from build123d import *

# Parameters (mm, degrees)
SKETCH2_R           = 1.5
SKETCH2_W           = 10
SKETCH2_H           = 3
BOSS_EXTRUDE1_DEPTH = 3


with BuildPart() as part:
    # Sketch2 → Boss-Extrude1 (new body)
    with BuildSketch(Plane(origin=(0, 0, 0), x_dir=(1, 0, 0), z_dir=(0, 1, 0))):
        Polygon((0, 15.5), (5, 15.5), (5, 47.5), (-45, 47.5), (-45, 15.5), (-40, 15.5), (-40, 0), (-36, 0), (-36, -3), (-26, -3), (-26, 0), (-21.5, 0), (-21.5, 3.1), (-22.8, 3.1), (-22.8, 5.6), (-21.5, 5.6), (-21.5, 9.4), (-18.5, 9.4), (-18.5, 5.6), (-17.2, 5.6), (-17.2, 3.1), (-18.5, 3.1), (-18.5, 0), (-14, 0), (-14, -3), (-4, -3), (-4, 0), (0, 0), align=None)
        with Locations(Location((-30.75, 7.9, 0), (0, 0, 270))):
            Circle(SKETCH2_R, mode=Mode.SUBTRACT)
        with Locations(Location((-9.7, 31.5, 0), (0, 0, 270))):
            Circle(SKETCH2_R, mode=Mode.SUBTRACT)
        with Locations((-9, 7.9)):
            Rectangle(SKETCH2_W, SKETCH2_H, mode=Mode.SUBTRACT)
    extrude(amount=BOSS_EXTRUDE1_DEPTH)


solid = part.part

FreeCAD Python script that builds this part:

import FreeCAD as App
import Part
import Sketcher
from FreeCAD import Vector

doc = App.newDocument("Part")
body = doc.addObject("PartDesign::Body", "Body")

# Sketch on XZ plane
sketch1 = body.newObject("Sketcher::SketchObject", "Sketch")
sketch1.AttachmentSupport = (doc.getObject("XZ_Plane"), [""])
sketch1.MapMode = "FlatFace"
sketch1.addGeometry([
    Part.LineSegment(Vector(0, -15.5, 0), Vector(5, -15.5, 0)),  # 0
    Part.LineSegment(Vector(5, -15.5, 0), Vector(5, -47.5, 0)),  # 1
    Part.LineSegment(Vector(5, -47.5, 0), Vector(-45, -47.5, 0)),  # 2
    Part.LineSegment(Vector(-45, -47.5, 0), Vector(-45, -15.5, 0)),  # 3
    Part.LineSegment(Vector(-45, -15.5, 0), Vector(-40, -15.5, 0)),  # 4
    Part.LineSegment(Vector(-40, -15.5, 0), Vector(-40, 0, 0)),  # 5
    Part.LineSegment(Vector(-40, 0, 0), Vector(-36, 0, 0)),  # 6
    Part.LineSegment(Vector(-36, 0, 0), Vector(-36, 3, 0)),  # 7
    Part.LineSegment(Vector(-36, 3, 0), Vector(-26, 3, 0)),  # 8
    Part.LineSegment(Vector(-26, 3, 0), Vector(-26, 0, 0)),  # 9
    Part.LineSegment(Vector(-26, 0, 0), Vector(-21.5, 0, 0)),  # 10
    Part.LineSegment(Vector(-21.5, 0, 0), Vector(-21.5, -3.1, 0)),  # 11
    Part.LineSegment(Vector(-21.5, -3.1, 0), Vector(-22.8, -3.1, 0)),  # 12
    Part.LineSegment(Vector(-22.8, -3.1, 0), Vector(-22.8, -5.6, 0)),  # 13
    Part.LineSegment(Vector(-22.8, -5.6, 0), Vector(-21.5, -5.6, 0)),  # 14
    Part.LineSegment(Vector(-21.5, -5.6, 0), Vector(-21.5, -9.4, 0)),  # 15
    Part.LineSegment(Vector(-21.5, -9.4, 0), Vector(-18.5, -9.4, 0)),  # 16
    Part.LineSegment(Vector(-18.5, -9.4, 0), Vector(-18.5, -5.6, 0)),  # 17
    Part.LineSegment(Vector(-18.5, -5.6, 0), Vector(-17.2, -5.6, 0)),  # 18
    Part.LineSegment(Vector(-17.2, -5.6, 0), Vector(-17.2, -3.1, 0)),  # 19
    Part.LineSegment(Vector(-17.2, -3.1, 0), Vector(-18.5, -3.1, 0)),  # 20
    Part.LineSegment(Vector(-18.5, -3.1, 0), Vector(-18.5, 0, 0)),  # 21
    Part.LineSegment(Vector(-18.5, 0, 0), Vector(-14, 0, 0)),  # 22
    Part.LineSegment(Vector(-14, 0, 0), Vector(-14, 3, 0)),  # 23
    Part.LineSegment(Vector(-14, 3, 0), Vector(-4, 3, 0)),  # 24
    Part.LineSegment(Vector(-4, 3, 0), Vector(-4, 0, 0)),  # 25
    Part.LineSegment(Vector(-4, 0, 0), Vector(0, 0, 0)),  # 26
    Part.LineSegment(Vector(0, 0, 0), Vector(0, -15.5, 0)),  # 27
    Part.Circle(Vector(-30.8, -7.9, 0), Vector(0, 0, 1), 1.5),  # 28
    Part.LineSegment(Vector(-4, -6.4, 0), Vector(-14, -6.4, 0)),  # 29
    Part.LineSegment(Vector(-14, -6.4, 0), Vector(-14, -9.4, 0)),  # 30
    Part.LineSegment(Vector(-14, -9.4, 0), Vector(-4, -9.4, 0)),  # 31
    Part.LineSegment(Vector(-4, -9.4, 0), Vector(-4, -6.4, 0)),  # 32
    Part.Circle(Vector(-9.7, -31.5, 0), Vector(0, 0, 1), 1.5),  # 33
], False)
sketch1.addConstraint([
    Sketcher.Constraint("Coincident", 0, 2, 1, 1),
    Sketcher.Constraint("Coincident", 1, 2, 2, 1),
    Sketcher.Constraint("Coincident", 2, 2, 3, 1),
    Sketcher.Constraint("Coincident", 3, 2, 4, 1),
    Sketcher.Constraint("Coincident", 4, 2, 5, 1),
    Sketcher.Constraint("Coincident", 5, 2, 6, 1),
    Sketcher.Constraint("Coincident", 6, 2, 7, 1),
    Sketcher.Constraint("Coincident", 7, 2, 8, 1),
    Sketcher.Constraint("Coincident", 8, 2, 9, 1),
    Sketcher.Constraint("Coincident", 9, 2, 10, 1),
    Sketcher.Constraint("Coincident", 10, 2, 11, 1),
    Sketcher.Constraint("Coincident", 11, 2, 12, 1),
    Sketcher.Constraint("Coincident", 12, 2, 13, 1),
    Sketcher.Constraint("Coincident", 13, 2, 14, 1),
    Sketcher.Constraint("Coincident", 14, 2, 15, 1),
    Sketcher.Constraint("Coincident", 15, 2, 16, 1),
    Sketcher.Constraint("Coincident", 16, 2, 17, 1),
    Sketcher.Constraint("Coincident", 17, 2, 18, 1),
    Sketcher.Constraint("Coincident", 18, 2, 19, 1),
    Sketcher.Constraint("Coincident", 19, 2, 20, 1),
    Sketcher.Constraint("Coincident", 20, 2, 21, 1),
    Sketcher.Constraint("Coincident", 21, 2, 22, 1),
    Sketcher.Constraint("Coincident", 22, 2, 23, 1),
    Sketcher.Constraint("Coincident", 23, 2, 24, 1),
    Sketcher.Constraint("Coincident", 24, 2, 25, 1),
    Sketcher.Constraint("Coincident", 25, 2, 26, 1),
    Sketcher.Constraint("Coincident", 26, 2, 27, 1),
    Sketcher.Constraint("Coincident", 27, 2, 0, 1),
    Sketcher.Constraint("Coincident", 29, 2, 30, 1),
    Sketcher.Constraint("Coincident", 30, 2, 31, 1),
    Sketcher.Constraint("Coincident", 31, 2, 32, 1),
    Sketcher.Constraint("Coincident", 32, 2, 29, 1),
    Sketcher.Constraint("Horizontal", 0),
    Sketcher.Constraint("Vertical", 1),
    Sketcher.Constraint("Horizontal", 2),
    Sketcher.Constraint("Vertical", 3),
    Sketcher.Constraint("Horizontal", 4),
    Sketcher.Constraint("Vertical", 5),
    Sketcher.Constraint("Horizontal", 6),
    Sketcher.Constraint("Vertical", 7),
    Sketcher.Constraint("Horizontal", 8),
    Sketcher.Constraint("Vertical", 9),
    Sketcher.Constraint("Horizontal", 10),
    Sketcher.Constraint("Vertical", 11),
    Sketcher.Constraint("Horizontal", 12),
    Sketcher.Constraint("Vertical", 13),
    Sketcher.Constraint("Horizontal", 14),
    Sketcher.Constraint("Vertical", 15),
    Sketcher.Constraint("Horizontal", 16),
    Sketcher.Constraint("Vertical", 17),
    Sketcher.Constraint("Horizontal", 18),
    Sketcher.Constraint("Vertical", 19),
    Sketcher.Constraint("Horizontal", 20),
    Sketcher.Constraint("Vertical", 21),
    Sketcher.Constraint("Horizontal", 22),
    Sketcher.Constraint("Vertical", 23),
    Sketcher.Constraint("Horizontal", 24),
    Sketcher.Constraint("Vertical", 25),
    Sketcher.Constraint("Horizontal", 26),
    Sketcher.Constraint("Vertical", 27),
    Sketcher.Constraint("Horizontal", 29),
    Sketcher.Constraint("Vertical", 30),
    Sketcher.Constraint("Horizontal", 31),
    Sketcher.Constraint("Vertical", 32),
    Sketcher.Constraint("Coincident", 26, 2, -1, 1),
    Sketcher.Constraint("Equal", 28, 33),
    Sketcher.Constraint("PointOnObject", 5, 2, -1),
    Sketcher.Constraint("PointOnObject", 9, 2, -1),
    Sketcher.Constraint("PointOnObject", 21, 2, -1),
    Sketcher.Constraint("Horizontal", 0, 2, 3, 2),
    Sketcher.Constraint("Horizontal", 14, 2, 17, 2),
    Sketcher.Constraint("Horizontal", 12, 2, 19, 2),
    Sketcher.Constraint("Horizontal", 8, 2, 23, 2),
    Sketcher.Constraint("Horizontal", 16, 2, 30, 2),
    Sketcher.Constraint("Vertical", 11, 2, 14, 2),
    Sketcher.Constraint("Vertical", 17, 2, 20, 2),
    Sketcher.Constraint("Vertical", 23, 2, 29, 2),
    Sketcher.Constraint("Vertical", 25, 2, 31, 2),
    Sketcher.Constraint("Equal", 0, 4),
    Sketcher.Constraint("Equal", 14, 18),
    Sketcher.Constraint("Equal", 10, 22),
    Sketcher.Constraint("Equal", 8, 24),
    Sketcher.Constraint("Equal", 6, 26),
    Sketcher.Constraint("Equal", 16, 7),
    Sketcher.Constraint("Equal", 25, 30),
    Sketcher.Constraint("Diameter", 28, 3.0),
    Sketcher.Constraint("DistanceX", 0, 1, 0, 2, 5.0),
    Sketcher.Constraint("DistanceX", 2, 2, 2, 1, 50.0),
    Sketcher.Constraint("DistanceX", 6, 1, 6, 2, 4.0),
    Sketcher.Constraint("DistanceX", 8, 1, 8, 2, 10.0),
    Sketcher.Constraint("DistanceX", 16, 1, 16, 2, 3.0),
    Sketcher.Constraint("DistanceY", 1, 2, 1, 1, 32.0),
    Sketcher.Constraint("DistanceX", 12, 2, 12, 1, 1.3),
    Sketcher.Constraint("DistanceY", 5, 1, 5, 2, 15.5),
    Sketcher.Constraint("DistanceY", 11, 2, 11, 1, 3.1),
    Sketcher.Constraint("DistanceY", 13, 2, 13, 1, 2.5),
    Sketcher.Constraint("DistanceY", 15, 2, 15, 1, 3.8),
    Sketcher.Constraint("DistanceY", 33, 3, 0, 2, 16.0),
    Sketcher.Constraint("DistanceY", 28, 3, -1, 1, 7.9),
    Sketcher.Constraint("DistanceX", 33, 3, -1, 1, 9.7),
    Sketcher.Constraint("DistanceX", 28, 3, -1, 1, 30.75),
])
pad1 = body.newObject("PartDesign::Pad", "Pad")
pad1.Profile = sketch1
pad1.Length = 3
pad1.Reversed = True

doc.recompute()
